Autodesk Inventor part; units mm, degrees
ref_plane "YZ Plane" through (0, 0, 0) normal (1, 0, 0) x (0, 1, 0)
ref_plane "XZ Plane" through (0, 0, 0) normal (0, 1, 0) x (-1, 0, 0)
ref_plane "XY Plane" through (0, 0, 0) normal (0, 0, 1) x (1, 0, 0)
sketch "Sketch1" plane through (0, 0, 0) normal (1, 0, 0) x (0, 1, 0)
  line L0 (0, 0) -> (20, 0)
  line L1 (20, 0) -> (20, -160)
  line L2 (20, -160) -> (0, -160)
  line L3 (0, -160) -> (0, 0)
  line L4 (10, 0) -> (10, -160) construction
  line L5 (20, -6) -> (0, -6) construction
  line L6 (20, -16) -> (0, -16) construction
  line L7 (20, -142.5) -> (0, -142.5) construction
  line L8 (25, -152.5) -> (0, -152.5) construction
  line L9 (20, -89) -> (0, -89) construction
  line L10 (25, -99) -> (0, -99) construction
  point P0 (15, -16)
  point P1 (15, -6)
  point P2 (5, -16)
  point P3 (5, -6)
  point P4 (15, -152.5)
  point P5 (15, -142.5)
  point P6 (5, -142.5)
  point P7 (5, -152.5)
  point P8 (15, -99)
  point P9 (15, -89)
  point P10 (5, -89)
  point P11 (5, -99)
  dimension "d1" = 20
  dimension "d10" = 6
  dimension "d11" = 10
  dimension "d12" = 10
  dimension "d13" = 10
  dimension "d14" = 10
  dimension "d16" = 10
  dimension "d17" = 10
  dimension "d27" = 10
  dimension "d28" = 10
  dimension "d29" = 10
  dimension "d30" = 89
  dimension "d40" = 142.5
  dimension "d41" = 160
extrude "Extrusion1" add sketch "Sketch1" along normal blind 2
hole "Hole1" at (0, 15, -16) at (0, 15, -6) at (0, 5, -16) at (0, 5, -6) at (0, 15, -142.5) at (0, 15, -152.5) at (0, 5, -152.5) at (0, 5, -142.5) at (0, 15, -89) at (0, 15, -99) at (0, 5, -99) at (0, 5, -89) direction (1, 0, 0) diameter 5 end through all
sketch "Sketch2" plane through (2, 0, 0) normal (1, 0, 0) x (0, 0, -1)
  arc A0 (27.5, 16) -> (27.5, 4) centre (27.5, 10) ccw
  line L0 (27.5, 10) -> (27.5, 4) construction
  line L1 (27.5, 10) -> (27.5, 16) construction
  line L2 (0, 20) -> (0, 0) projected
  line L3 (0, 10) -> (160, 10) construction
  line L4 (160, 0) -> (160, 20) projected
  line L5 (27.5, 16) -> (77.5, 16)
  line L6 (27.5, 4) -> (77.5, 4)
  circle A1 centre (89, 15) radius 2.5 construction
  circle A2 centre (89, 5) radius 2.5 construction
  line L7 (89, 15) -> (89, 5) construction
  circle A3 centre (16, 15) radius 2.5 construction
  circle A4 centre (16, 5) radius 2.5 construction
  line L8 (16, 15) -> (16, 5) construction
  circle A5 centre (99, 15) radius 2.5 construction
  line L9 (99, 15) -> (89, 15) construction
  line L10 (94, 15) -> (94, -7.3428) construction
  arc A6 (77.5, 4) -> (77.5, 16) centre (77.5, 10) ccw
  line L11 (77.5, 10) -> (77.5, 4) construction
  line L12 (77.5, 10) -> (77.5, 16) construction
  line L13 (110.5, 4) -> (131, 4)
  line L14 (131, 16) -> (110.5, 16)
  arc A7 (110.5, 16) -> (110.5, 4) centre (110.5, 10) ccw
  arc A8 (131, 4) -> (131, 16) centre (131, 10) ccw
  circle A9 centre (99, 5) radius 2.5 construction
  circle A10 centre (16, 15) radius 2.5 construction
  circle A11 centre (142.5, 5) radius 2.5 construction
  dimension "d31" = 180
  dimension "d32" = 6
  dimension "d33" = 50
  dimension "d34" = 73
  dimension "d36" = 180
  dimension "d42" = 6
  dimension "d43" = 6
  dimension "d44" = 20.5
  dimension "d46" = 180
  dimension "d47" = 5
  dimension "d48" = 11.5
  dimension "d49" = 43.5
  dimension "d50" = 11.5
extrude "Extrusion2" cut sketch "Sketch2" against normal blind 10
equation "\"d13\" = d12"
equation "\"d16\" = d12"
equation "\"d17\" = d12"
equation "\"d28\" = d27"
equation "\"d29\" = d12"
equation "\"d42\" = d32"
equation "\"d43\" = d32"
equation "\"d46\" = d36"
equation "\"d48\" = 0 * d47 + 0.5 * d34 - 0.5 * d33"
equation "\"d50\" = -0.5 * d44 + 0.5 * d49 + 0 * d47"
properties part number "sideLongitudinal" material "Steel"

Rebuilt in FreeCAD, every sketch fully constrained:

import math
import FreeCAD as App
import Part
import Sketcher
from FreeCAD import Vector
Q = App.Units.Quantity


def add_polygon(sketch, points):
    """Adds a closed chain of lines whose ends are joined by coincident constraints."""
    first, n = sketch.GeometryCount, len(points)
    for a, b in zip(points, points[1:] + points[:1]):
        sketch.addGeometry(Part.LineSegment(App.Vector(*a, 0), App.Vector(*b, 0)), False)
    for i in range(n):
        sketch.addConstraint(Sketcher.Constraint("Coincident", first + i, 2, first + (i + 1) % n, 1))

doc = App.newDocument("Part")
body = doc.addObject("PartDesign::Body", "Body")

# Sketch on YZ plane
sketch1 = body.newObject("Sketcher::SketchObject", "Sketch")
sketch1.AttachmentSupport = (doc.getObject("YZ_Plane"), [""])
sketch1.MapMode = "FlatFace"
add_polygon(sketch1, [(20, 0), (0, 0), (0, -160), (20, -160)])  # lines 0-3
sketch1.addConstraint([
    Sketcher.Constraint("Horizontal", 0),
    Sketcher.Constraint("Vertical", 1),
    Sketcher.Constraint("Horizontal", 2),
    Sketcher.Constraint("Vertical", 3),
    Sketcher.Constraint("Coincident", 0, 2, -1, 1),
    Sketcher.Constraint("DistanceX", 0, 2, 0, 1, Q("20 mm")),
    Sketcher.Constraint("DistanceY", 1, 2, 1, 1, Q("160 mm")),
])
pad1 = body.newObject("PartDesign::Pad", "Pad")
pad1.Profile = sketch1
pad1.Length = 2

# Sketch on YZ plane
sketch2 = body.newObject("Sketcher::SketchObject", "Sketch001")
sketch2.AttachmentSupport = (doc.getObject("YZ_Plane"), [""])
sketch2.MapMode = "FlatFace"
sketch2.addGeometry([
    Part.Circle(Vector(15, -16, 0), Vector(0, 0, 1), 2.5),  # 0
    Part.Circle(Vector(15, -6, 0), Vector(0, 0, 1), 2.5),  # 1
    Part.Circle(Vector(5, -16, 0), Vector(0, 0, 1), 2.5),  # 2
    Part.Circle(Vector(5, -6, 0), Vector(0, 0, 1), 2.5),  # 3
    Part.Circle(Vector(15, -142.5, 0), Vector(0, 0, 1), 2.5),  # 4
    Part.Circle(Vector(15, -152.5, 0), Vector(0, 0, 1), 2.5),  # 5
    Part.Circle(Vector(5, -152.5, 0), Vector(0, 0, 1), 2.5),  # 6
    Part.Circle(Vector(5, -142.5, 0), Vector(0, 0, 1), 2.5),  # 7
    Part.Circle(Vector(15, -89, 0), Vector(0, 0, 1), 2.5),  # 8
    Part.Circle(Vector(15, -99, 0), Vector(0, 0, 1), 2.5),  # 9
    Part.Circle(Vector(5, -99, 0), Vector(0, 0, 1), 2.5),  # 10
    Part.Circle(Vector(5, -89, 0), Vector(0, 0, 1), 2.5),  # 11
], False)
sketch2.addConstraint([
    Sketcher.Constraint("Equal", 0, 1),
    Sketcher.Constraint("Equal", 1, 2),
    Sketcher.Constraint("Equal", 2, 3),
    Sketcher.Constraint("Equal", 3, 4),
    Sketcher.Constraint("Equal", 4, 5),
    Sketcher.Constraint("Equal", 5, 6),
    Sketcher.Constraint("Equal", 6, 7),
    Sketcher.Constraint("Equal", 7, 8),
    Sketcher.Constraint("Equal", 8, 9),
    Sketcher.Constraint("Equal", 9, 10),
    Sketcher.Constraint("Equal", 10, 11),
    Sketcher.Constraint("Horizontal", 0, 3, 2, 3),
    Sketcher.Constraint("Horizontal", 1, 3, 3, 3),
    Sketcher.Constraint("Horizontal", 5, 3, 6, 3),
    Sketcher.Constraint("Horizontal", 4, 3, 7, 3),
    Sketcher.Constraint("Horizontal", 9, 3, 10, 3),
    Sketcher.Constraint("Horizontal", 8, 3, 11, 3),
    Sketcher.Constraint("Vertical", 0, 3, 1, 3),
    Sketcher.Constraint("Vertical", 2, 3, 3, 3),
    Sketcher.Constraint("Vertical", 1, 3, 4, 3),
    Sketcher.Constraint("Vertical", 4, 3, 5, 3),
    Sketcher.Constraint("Vertical", 3, 3, 6, 3),
    Sketcher.Constraint("Vertical", 6, 3, 7, 3),
    Sketcher.Constraint("Vertical", 5, 3, 8, 3),
    Sketcher.Constraint("Vertical", 8, 3, 9, 3),
    Sketcher.Constraint("Vertical", 7, 3, 10, 3),
    Sketcher.Constraint("Vertical", 10, 3, 11, 3),
    Sketcher.Constraint("Diameter", 0, Q("5 mm")),
    Sketcher.Constraint("DistanceX", -1, 1, 0, 3, Q("15 mm")),
    Sketcher.Constraint("DistanceY", 0, 3, -1, 1, Q("16 mm")),
    Sketcher.Constraint("DistanceY", 1, 3, -1, 1, Q("6 mm")),
    Sketcher.Constraint("DistanceX", -1, 1, 2, 3, Q("5 mm")),
    Sketcher.Constraint("DistanceY", 8, 3, -1, 1, Q("89 mm")),
    Sketcher.Constraint("DistanceY", 9, 3, -1, 1, Q("99 mm")),
    Sketcher.Constraint("DistanceY", 5, 3, 4, 3, Q("10 mm")),
    Sketcher.Constraint("DistanceY", 4, 3, -1, 1, Q("142.5 mm")),
])
doc.recompute()
hole = body.newObject("PartDesign::Hole", "Hole")
hole.Profile = sketch2
hole.ThreadType = "None"
hole.Diameter = 5
hole.DepthType = "ThroughAll"
hole.Reversed = True

# Sketch on YZ plane
sketch3 = body.newObject("Sketcher::SketchObject", "Sketch002")
sketch3.AttachmentSupport = (doc.getObject("YZ_Plane"), [""])
sketch3.MapMode = "FlatFace"
sketch3.AttachmentOffset = App.Placement(Vector(0, 0, 2), App.Rotation())
sketch3.addGeometry([
    Part.LineSegment(Vector(16, -78, 0), Vector(16, -28, 0)),  # 0
    Part.ArcOfCircle(Part.Circle(Vector(10, -28, 0), Vector(0, 0, 1), 6), math.radians(0), math.radians(180)),  # 1
    Part.LineSegment(Vector(4, -28, 0), Vector(4, -78, 0)),  # 2
    Part.ArcOfCircle(Part.Circle(Vector(10, -78, 0), Vector(0, 0, 1), 6), math.radians(180), math.radians(360)),  # 3
    Part.ArcOfCircle(Part.Circle(Vector(10, -110, 0), Vector(0, 0, 1), 6), math.radians(0), math.radians(180)),  # 4
    Part.LineSegment(Vector(4, -110, 0), Vector(4, -131, 0)),  # 5
    Part.ArcOfCircle(Part.Circle(Vector(10, -131, 0), Vector(0, 0, 1), 6), math.radians(180), math.radians(360)),  # 6
    Part.LineSegment(Vector(16, -131, 0), Vector(16, -110, 0)),  # 7
], False)
sketch3.addConstraint([
    Sketcher.Constraint("Tangent", 0, 2, 1, 1),
    Sketcher.Constraint("Tangent", 1, 2, 2, 1),
    Sketcher.Constraint("Tangent", 2, 2, 3, 1),
    Sketcher.Constraint("Tangent", 3, 2, 0, 1),
    Sketcher.Constraint("Tangent", 4, 2, 5, 1),
    Sketcher.Constraint("Tangent", 5, 2, 6, 1),
    Sketcher.Constraint("Tangent", 6, 2, 7, 1),
    Sketcher.Constraint("Tangent", 7, 2, 4, 1),
    Sketcher.Constraint("Vertical", 0),
    Sketcher.Constraint("Vertical", 2),
    Sketcher.Constraint("Vertical", 5),
    Sketcher.Constraint("Vertical", 7),
    Sketcher.Constraint("Equal", 3, 4),
    Sketcher.Constraint("Vertical", 3, 3, 4, 3),
    Sketcher.Constraint("Radius", 1, Q("6 mm")),
    Sketcher.Constraint("DistanceY", 0, 1, 0, 2, Q("50 mm")),
    Sketcher.Constraint("DistanceY", 5, 2, 5, 1, Q("20.5 mm")),
    Sketcher.Constraint("DistanceX", -1, 1, 1, 3, Q("10 mm")),
    Sketcher.Constraint("DistanceY", 6, 3, -1, 1, Q("131 mm")),
    Sketcher.Constraint("DistanceY", 4, 3, 3, 3, Q("33 mm")),
])
pocket1 = body.newObject("PartDesign::Pocket", "Pocket")
pocket1.Profile = sketch3
pocket1.Length = 10

doc.recompute()
